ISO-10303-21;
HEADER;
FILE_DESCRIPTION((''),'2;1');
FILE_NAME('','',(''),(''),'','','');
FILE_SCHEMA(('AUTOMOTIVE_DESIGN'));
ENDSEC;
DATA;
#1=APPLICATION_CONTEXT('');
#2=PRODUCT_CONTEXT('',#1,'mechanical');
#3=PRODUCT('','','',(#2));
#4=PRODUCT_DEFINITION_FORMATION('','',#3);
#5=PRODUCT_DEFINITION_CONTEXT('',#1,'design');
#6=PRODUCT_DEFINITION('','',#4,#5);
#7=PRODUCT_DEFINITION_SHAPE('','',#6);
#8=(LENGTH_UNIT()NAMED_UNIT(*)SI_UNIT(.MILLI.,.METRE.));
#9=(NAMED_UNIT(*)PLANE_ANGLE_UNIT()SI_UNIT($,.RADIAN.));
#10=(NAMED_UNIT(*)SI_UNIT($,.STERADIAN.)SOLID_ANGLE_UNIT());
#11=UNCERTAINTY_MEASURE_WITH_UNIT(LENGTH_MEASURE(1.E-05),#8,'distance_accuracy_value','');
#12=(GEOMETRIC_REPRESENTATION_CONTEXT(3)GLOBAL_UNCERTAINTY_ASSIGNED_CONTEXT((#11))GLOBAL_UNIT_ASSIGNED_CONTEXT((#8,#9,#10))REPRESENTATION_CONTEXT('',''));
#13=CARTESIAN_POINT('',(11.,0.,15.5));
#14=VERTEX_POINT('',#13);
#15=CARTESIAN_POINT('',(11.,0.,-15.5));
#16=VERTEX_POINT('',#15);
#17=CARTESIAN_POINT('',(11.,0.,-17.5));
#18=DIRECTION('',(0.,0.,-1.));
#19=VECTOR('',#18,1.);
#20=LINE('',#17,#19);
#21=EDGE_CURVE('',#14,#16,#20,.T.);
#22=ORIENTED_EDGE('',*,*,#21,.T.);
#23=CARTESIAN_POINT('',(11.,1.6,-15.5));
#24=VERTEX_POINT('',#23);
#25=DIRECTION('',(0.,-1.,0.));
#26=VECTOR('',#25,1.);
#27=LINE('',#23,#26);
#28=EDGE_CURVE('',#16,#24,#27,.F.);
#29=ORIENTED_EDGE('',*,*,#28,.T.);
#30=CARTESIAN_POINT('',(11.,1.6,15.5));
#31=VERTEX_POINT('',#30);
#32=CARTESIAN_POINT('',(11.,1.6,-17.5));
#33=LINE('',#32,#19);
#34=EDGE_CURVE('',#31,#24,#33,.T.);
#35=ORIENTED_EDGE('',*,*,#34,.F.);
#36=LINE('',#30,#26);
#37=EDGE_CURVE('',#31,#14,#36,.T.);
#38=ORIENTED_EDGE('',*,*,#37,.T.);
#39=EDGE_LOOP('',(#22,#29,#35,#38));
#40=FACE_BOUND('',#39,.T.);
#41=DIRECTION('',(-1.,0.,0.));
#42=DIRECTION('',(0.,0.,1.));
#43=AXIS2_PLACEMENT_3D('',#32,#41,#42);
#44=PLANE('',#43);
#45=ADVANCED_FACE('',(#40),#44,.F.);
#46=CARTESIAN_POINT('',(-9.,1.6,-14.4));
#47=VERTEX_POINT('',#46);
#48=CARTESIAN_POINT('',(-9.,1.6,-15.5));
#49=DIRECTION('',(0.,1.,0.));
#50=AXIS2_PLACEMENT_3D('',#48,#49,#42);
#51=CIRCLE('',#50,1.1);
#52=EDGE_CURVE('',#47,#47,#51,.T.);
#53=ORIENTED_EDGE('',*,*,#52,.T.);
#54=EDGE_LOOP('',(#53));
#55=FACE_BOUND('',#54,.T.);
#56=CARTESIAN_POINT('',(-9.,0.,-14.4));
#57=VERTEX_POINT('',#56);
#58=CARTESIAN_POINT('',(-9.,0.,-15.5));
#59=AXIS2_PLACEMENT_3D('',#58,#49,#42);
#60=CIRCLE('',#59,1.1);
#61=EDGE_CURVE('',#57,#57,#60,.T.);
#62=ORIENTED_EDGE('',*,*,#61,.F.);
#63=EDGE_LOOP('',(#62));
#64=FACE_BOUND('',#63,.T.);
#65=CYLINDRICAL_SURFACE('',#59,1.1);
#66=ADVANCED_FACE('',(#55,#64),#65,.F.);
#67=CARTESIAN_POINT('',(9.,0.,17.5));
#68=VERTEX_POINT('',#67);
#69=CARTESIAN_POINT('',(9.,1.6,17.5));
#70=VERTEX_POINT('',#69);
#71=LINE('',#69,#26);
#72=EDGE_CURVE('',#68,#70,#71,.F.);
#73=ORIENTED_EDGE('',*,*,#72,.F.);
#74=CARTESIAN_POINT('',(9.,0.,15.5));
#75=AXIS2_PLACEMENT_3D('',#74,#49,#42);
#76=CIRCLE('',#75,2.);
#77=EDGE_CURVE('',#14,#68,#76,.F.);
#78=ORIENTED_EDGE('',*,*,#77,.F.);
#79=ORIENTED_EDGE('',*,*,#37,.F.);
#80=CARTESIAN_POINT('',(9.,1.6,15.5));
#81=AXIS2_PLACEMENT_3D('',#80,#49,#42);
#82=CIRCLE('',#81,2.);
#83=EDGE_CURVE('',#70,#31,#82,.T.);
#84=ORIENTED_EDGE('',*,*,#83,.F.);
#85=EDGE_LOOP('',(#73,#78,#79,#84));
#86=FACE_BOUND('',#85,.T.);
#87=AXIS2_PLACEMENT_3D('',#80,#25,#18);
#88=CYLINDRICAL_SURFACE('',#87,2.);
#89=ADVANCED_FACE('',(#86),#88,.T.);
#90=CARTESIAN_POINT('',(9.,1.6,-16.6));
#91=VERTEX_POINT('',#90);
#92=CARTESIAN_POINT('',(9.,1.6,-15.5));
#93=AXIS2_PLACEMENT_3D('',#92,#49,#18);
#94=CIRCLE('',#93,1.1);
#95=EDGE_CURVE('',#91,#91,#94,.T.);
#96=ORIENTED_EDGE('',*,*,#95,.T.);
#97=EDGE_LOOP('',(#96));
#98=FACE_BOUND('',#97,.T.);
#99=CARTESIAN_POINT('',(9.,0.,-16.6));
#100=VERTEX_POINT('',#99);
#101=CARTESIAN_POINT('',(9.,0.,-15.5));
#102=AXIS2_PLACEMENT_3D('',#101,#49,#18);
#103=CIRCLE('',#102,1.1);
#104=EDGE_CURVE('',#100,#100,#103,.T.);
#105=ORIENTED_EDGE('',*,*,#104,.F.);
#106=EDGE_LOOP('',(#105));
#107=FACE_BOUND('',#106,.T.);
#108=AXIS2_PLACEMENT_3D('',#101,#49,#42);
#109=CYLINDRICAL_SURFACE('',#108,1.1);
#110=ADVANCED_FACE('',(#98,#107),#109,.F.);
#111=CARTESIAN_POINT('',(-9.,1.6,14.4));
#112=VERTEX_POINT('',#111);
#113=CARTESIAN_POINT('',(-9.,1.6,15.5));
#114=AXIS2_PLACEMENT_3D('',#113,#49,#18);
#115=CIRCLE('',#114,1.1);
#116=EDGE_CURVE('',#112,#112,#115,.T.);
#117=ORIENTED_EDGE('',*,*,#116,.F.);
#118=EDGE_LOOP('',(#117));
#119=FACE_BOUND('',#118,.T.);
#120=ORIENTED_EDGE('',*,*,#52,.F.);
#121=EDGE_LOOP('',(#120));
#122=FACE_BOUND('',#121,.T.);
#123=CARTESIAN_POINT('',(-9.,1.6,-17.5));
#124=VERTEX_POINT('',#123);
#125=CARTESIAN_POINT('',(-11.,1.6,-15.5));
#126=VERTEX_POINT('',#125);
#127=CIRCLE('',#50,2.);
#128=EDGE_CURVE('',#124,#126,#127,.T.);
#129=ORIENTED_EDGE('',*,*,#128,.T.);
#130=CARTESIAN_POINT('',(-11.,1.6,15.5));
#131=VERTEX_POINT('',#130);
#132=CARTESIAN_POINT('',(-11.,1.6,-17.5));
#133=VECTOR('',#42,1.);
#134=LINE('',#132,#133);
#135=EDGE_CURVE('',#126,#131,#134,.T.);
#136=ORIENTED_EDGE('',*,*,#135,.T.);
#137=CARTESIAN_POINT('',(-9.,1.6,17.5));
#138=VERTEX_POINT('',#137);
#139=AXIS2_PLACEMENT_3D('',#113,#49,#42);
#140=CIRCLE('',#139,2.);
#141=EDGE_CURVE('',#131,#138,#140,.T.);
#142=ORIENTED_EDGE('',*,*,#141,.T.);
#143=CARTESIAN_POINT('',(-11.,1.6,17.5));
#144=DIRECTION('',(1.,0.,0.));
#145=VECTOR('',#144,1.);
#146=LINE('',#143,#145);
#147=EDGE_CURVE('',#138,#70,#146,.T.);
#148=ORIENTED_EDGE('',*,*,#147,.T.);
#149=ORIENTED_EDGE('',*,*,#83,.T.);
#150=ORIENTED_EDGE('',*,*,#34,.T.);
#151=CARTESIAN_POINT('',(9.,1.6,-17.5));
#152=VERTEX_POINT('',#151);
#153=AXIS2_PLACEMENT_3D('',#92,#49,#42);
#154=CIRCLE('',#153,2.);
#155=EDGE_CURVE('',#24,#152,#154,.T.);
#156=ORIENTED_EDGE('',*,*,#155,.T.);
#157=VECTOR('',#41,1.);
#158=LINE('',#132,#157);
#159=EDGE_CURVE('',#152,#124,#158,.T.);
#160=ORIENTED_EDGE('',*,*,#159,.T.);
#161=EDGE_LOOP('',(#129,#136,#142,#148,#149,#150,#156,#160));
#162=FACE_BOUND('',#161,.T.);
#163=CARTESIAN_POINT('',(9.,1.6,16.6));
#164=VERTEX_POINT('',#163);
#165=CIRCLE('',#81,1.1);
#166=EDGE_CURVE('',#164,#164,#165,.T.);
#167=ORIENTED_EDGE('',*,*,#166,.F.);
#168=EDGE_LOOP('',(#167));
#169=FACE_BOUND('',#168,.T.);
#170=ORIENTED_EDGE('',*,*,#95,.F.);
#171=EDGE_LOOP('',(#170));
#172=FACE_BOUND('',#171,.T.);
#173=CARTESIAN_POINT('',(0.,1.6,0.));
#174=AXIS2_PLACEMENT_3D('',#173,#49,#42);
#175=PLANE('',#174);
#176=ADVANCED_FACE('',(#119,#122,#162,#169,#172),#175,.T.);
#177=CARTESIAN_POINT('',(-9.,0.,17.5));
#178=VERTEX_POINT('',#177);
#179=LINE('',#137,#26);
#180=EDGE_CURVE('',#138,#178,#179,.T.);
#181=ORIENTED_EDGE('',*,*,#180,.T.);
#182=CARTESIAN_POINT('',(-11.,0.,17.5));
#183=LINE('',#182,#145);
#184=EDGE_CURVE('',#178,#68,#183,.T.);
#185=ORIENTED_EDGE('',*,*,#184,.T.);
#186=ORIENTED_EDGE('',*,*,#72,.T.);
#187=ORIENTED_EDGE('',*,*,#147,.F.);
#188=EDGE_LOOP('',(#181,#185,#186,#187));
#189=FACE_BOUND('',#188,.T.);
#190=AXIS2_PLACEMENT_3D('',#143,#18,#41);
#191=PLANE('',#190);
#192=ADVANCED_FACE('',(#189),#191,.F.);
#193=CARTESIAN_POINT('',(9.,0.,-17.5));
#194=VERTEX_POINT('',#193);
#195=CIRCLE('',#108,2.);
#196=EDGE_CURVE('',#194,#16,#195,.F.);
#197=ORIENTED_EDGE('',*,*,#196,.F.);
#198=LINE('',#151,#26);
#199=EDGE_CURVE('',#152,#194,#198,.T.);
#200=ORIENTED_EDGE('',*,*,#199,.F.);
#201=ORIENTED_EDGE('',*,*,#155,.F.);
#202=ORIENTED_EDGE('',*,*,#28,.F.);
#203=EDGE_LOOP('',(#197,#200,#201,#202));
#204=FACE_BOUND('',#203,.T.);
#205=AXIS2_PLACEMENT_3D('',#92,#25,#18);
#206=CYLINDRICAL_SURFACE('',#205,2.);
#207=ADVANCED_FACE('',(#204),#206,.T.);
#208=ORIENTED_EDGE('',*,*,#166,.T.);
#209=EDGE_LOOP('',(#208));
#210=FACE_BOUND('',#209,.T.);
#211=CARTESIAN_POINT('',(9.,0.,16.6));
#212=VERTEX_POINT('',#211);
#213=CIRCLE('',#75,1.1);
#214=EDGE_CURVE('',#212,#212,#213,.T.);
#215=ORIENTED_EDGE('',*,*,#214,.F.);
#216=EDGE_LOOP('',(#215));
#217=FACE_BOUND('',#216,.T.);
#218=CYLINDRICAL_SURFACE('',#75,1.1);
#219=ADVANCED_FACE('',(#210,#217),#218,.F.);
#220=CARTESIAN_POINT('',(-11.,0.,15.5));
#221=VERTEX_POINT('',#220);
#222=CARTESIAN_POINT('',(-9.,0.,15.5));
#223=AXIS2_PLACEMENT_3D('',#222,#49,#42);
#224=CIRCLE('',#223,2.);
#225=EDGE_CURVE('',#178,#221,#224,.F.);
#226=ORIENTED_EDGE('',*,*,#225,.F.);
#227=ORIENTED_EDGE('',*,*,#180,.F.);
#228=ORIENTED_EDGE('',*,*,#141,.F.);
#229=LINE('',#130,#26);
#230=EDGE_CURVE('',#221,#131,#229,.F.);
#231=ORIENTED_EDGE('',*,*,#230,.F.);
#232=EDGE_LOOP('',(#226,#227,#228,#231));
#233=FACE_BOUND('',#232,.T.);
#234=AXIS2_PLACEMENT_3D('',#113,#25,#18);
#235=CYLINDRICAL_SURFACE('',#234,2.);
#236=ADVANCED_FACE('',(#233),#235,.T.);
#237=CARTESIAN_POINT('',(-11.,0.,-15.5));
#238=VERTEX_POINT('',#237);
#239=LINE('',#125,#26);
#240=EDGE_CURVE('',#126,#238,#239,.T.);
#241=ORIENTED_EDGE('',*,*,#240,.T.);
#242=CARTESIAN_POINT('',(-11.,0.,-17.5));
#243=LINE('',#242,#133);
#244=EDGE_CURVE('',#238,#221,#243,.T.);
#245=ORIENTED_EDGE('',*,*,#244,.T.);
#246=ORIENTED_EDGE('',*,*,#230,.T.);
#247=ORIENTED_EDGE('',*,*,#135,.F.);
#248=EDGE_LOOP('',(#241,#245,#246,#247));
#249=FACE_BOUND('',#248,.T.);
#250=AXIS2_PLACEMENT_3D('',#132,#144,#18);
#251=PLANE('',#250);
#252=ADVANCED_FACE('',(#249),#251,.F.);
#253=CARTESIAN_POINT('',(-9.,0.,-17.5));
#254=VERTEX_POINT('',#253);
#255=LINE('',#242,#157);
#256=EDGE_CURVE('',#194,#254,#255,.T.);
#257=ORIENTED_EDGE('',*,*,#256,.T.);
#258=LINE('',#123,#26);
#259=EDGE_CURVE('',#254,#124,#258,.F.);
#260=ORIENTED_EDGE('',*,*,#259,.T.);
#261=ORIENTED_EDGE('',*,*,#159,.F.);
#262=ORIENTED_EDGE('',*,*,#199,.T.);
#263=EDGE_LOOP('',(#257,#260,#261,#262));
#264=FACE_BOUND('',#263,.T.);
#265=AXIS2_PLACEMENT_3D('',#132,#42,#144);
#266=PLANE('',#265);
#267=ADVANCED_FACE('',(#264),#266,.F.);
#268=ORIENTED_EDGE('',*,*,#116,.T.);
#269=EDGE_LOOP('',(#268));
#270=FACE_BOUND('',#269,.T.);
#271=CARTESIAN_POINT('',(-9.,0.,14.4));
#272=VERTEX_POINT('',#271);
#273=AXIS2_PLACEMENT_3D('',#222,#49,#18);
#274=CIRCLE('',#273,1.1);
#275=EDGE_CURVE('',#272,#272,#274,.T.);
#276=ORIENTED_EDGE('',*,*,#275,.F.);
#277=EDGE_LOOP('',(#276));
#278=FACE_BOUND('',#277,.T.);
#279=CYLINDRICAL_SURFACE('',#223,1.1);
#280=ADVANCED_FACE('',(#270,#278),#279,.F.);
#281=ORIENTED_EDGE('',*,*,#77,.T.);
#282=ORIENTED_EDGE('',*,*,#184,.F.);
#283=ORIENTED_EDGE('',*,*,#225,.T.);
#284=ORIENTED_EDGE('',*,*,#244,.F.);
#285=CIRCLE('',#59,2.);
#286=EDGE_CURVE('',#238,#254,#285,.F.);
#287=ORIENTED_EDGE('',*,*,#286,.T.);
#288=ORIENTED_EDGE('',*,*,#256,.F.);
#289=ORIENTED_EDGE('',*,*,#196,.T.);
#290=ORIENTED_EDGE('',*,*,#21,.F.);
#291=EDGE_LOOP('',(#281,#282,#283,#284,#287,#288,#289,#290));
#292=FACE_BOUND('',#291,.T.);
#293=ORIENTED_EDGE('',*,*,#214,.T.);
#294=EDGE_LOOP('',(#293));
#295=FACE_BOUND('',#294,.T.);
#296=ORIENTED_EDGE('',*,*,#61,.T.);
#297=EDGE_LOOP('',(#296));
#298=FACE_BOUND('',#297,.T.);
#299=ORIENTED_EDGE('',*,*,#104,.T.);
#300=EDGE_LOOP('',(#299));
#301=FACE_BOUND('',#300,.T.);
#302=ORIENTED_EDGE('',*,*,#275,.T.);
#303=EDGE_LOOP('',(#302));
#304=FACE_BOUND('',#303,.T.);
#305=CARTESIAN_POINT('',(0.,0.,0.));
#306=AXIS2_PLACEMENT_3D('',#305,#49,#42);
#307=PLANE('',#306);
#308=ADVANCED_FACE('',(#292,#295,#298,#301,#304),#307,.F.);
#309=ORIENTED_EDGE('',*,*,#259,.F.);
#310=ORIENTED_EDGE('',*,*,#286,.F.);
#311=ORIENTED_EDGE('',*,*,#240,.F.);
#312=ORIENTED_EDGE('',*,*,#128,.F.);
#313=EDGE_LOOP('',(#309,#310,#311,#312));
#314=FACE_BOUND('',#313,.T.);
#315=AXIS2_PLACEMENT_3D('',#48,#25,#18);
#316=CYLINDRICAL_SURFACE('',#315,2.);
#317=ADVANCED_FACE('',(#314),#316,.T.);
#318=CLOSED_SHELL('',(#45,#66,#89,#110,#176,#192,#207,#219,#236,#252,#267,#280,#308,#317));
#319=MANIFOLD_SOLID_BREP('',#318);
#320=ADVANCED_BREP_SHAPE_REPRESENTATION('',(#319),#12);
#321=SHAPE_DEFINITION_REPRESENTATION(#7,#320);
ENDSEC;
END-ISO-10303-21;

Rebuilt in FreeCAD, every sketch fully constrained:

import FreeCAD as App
import Part
import Sketcher
from FreeCAD import Vector
Q = App.Units.Quantity


def edges_at(feature, points):
    """Names of the edges that pass closest to the given points."""
    edges = feature.Shape.Edges
    near = lambda p: min(range(len(edges)), key=lambda i: edges[i].distToShape(Part.Vertex(*p))[0])
    return sorted({f"Edge{near(p) + 1}" for p in points})

doc = App.newDocument("Part")
body = doc.addObject("PartDesign::Body", "Body")

# Sketch on XZ plane
sketch1 = body.newObject("Sketcher::SketchObject", "Sketch")
sketch1.AttachmentSupport = (doc.getObject("XZ_Plane"), [""])
sketch1.MapMode = "FlatFace"
sketch1.addGeometry([
    Part.LineSegment(Vector(-11, -18, 0), Vector(-11, 18, 0)),
    Part.LineSegment(Vector(-11, 18, 0), Vector(11, 18, 0)),
    Part.LineSegment(Vector(11, 18, 0), Vector(11, -18, 0)),
    Part.LineSegment(Vector(11, -18, 0), Vector(-11, -18, 0)),
], False)
sketch1.addConstraint([
    Sketcher.Constraint("Coincident", 0, 2, 1, 1),
    Sketcher.Constraint("Coincident", 1, 2, 2, 1),
    Sketcher.Constraint("Coincident", 2, 2, 3, 1),
    Sketcher.Constraint("Coincident", 3, 2, 0, 1),
    Sketcher.Constraint("Vertical", 0),
    Sketcher.Constraint("Horizontal", 1),
    Sketcher.Constraint("Vertical", 2),
    Sketcher.Constraint("Horizontal", 3),
    Sketcher.Constraint("Symmetric", 0, 2, 2, 2, -1, 1),
    Sketcher.Constraint("DistanceX", 1, 1, 1, 2, Q("22 mm")),
    Sketcher.Constraint("DistanceY", 0, 1, 0, 2, Q("35 mm")),
])
pad1 = body.newObject("PartDesign::Pad", "Pad")
pad1.Profile = sketch1
pad1.Length = 1.6
pad1.Reversed = True

# Sketch on XZ plane
sketch2 = body.newObject("Sketcher::SketchObject", "Sketch001")
sketch2.AttachmentSupport = (doc.getObject("XZ_Plane"), [""])
sketch2.MapMode = "FlatFace"
sketch2.AttachmentOffset = App.Placement(Vector(0, 0, -1.6), App.Rotation())
sketch2.addGeometry([
    Part.Circle(Vector(-9, -15.5, 0), Vector(0, 0, 1), 1.1),
    Part.Circle(Vector(9, -15.5, 0), Vector(0, 0, 1), 1.1),
    Part.Circle(Vector(9, 15.5, 0), Vector(0, 0, 1), 1.1),
    Part.Circle(Vector(-9, 15.5, 0), Vector(0, 0, 1), 1.1),
], False)
sketch2.addConstraint([
    Sketcher.Constraint("Equal", 0, 1),
    Sketcher.Constraint("Equal", 1, 2),
    Sketcher.Constraint("Equal", 2, 3),
    Sketcher.Constraint("Symmetric", 0, 3, 2, 3, -1, 1),
    Sketcher.Constraint("Symmetric", 1, 3, 3, 3, -1, 1),
    Sketcher.Constraint("Symmetric", 0, 3, 1, 3, -2),
    Sketcher.Constraint("Diameter", 0, Q("2.2 mm")),
    Sketcher.Constraint("DistanceX", 0, 3, -1, 1, Q("9 mm")),
    Sketcher.Constraint("DistanceY", 1, 3, 2, 3, Q("31 mm")),
])
pocket1 = body.newObject("PartDesign::Pocket", "Pocket")
pocket1.Profile = sketch2
pocket1.Type = "ThroughAll"
pocket1.Reversed = True
doc.recompute()

fillet = body.newObject("PartDesign::Fillet", "Fillet")
fillet.Base = (pocket1, edges_at(pocket1, [
    (11, 0.8, 17.5),
    (-11, 0.8, 17.5),
    (-11, 0.8, -17.5),
    (11, 0.8, -17.5),
]))
fillet.Radius = 2

doc.recompute()
